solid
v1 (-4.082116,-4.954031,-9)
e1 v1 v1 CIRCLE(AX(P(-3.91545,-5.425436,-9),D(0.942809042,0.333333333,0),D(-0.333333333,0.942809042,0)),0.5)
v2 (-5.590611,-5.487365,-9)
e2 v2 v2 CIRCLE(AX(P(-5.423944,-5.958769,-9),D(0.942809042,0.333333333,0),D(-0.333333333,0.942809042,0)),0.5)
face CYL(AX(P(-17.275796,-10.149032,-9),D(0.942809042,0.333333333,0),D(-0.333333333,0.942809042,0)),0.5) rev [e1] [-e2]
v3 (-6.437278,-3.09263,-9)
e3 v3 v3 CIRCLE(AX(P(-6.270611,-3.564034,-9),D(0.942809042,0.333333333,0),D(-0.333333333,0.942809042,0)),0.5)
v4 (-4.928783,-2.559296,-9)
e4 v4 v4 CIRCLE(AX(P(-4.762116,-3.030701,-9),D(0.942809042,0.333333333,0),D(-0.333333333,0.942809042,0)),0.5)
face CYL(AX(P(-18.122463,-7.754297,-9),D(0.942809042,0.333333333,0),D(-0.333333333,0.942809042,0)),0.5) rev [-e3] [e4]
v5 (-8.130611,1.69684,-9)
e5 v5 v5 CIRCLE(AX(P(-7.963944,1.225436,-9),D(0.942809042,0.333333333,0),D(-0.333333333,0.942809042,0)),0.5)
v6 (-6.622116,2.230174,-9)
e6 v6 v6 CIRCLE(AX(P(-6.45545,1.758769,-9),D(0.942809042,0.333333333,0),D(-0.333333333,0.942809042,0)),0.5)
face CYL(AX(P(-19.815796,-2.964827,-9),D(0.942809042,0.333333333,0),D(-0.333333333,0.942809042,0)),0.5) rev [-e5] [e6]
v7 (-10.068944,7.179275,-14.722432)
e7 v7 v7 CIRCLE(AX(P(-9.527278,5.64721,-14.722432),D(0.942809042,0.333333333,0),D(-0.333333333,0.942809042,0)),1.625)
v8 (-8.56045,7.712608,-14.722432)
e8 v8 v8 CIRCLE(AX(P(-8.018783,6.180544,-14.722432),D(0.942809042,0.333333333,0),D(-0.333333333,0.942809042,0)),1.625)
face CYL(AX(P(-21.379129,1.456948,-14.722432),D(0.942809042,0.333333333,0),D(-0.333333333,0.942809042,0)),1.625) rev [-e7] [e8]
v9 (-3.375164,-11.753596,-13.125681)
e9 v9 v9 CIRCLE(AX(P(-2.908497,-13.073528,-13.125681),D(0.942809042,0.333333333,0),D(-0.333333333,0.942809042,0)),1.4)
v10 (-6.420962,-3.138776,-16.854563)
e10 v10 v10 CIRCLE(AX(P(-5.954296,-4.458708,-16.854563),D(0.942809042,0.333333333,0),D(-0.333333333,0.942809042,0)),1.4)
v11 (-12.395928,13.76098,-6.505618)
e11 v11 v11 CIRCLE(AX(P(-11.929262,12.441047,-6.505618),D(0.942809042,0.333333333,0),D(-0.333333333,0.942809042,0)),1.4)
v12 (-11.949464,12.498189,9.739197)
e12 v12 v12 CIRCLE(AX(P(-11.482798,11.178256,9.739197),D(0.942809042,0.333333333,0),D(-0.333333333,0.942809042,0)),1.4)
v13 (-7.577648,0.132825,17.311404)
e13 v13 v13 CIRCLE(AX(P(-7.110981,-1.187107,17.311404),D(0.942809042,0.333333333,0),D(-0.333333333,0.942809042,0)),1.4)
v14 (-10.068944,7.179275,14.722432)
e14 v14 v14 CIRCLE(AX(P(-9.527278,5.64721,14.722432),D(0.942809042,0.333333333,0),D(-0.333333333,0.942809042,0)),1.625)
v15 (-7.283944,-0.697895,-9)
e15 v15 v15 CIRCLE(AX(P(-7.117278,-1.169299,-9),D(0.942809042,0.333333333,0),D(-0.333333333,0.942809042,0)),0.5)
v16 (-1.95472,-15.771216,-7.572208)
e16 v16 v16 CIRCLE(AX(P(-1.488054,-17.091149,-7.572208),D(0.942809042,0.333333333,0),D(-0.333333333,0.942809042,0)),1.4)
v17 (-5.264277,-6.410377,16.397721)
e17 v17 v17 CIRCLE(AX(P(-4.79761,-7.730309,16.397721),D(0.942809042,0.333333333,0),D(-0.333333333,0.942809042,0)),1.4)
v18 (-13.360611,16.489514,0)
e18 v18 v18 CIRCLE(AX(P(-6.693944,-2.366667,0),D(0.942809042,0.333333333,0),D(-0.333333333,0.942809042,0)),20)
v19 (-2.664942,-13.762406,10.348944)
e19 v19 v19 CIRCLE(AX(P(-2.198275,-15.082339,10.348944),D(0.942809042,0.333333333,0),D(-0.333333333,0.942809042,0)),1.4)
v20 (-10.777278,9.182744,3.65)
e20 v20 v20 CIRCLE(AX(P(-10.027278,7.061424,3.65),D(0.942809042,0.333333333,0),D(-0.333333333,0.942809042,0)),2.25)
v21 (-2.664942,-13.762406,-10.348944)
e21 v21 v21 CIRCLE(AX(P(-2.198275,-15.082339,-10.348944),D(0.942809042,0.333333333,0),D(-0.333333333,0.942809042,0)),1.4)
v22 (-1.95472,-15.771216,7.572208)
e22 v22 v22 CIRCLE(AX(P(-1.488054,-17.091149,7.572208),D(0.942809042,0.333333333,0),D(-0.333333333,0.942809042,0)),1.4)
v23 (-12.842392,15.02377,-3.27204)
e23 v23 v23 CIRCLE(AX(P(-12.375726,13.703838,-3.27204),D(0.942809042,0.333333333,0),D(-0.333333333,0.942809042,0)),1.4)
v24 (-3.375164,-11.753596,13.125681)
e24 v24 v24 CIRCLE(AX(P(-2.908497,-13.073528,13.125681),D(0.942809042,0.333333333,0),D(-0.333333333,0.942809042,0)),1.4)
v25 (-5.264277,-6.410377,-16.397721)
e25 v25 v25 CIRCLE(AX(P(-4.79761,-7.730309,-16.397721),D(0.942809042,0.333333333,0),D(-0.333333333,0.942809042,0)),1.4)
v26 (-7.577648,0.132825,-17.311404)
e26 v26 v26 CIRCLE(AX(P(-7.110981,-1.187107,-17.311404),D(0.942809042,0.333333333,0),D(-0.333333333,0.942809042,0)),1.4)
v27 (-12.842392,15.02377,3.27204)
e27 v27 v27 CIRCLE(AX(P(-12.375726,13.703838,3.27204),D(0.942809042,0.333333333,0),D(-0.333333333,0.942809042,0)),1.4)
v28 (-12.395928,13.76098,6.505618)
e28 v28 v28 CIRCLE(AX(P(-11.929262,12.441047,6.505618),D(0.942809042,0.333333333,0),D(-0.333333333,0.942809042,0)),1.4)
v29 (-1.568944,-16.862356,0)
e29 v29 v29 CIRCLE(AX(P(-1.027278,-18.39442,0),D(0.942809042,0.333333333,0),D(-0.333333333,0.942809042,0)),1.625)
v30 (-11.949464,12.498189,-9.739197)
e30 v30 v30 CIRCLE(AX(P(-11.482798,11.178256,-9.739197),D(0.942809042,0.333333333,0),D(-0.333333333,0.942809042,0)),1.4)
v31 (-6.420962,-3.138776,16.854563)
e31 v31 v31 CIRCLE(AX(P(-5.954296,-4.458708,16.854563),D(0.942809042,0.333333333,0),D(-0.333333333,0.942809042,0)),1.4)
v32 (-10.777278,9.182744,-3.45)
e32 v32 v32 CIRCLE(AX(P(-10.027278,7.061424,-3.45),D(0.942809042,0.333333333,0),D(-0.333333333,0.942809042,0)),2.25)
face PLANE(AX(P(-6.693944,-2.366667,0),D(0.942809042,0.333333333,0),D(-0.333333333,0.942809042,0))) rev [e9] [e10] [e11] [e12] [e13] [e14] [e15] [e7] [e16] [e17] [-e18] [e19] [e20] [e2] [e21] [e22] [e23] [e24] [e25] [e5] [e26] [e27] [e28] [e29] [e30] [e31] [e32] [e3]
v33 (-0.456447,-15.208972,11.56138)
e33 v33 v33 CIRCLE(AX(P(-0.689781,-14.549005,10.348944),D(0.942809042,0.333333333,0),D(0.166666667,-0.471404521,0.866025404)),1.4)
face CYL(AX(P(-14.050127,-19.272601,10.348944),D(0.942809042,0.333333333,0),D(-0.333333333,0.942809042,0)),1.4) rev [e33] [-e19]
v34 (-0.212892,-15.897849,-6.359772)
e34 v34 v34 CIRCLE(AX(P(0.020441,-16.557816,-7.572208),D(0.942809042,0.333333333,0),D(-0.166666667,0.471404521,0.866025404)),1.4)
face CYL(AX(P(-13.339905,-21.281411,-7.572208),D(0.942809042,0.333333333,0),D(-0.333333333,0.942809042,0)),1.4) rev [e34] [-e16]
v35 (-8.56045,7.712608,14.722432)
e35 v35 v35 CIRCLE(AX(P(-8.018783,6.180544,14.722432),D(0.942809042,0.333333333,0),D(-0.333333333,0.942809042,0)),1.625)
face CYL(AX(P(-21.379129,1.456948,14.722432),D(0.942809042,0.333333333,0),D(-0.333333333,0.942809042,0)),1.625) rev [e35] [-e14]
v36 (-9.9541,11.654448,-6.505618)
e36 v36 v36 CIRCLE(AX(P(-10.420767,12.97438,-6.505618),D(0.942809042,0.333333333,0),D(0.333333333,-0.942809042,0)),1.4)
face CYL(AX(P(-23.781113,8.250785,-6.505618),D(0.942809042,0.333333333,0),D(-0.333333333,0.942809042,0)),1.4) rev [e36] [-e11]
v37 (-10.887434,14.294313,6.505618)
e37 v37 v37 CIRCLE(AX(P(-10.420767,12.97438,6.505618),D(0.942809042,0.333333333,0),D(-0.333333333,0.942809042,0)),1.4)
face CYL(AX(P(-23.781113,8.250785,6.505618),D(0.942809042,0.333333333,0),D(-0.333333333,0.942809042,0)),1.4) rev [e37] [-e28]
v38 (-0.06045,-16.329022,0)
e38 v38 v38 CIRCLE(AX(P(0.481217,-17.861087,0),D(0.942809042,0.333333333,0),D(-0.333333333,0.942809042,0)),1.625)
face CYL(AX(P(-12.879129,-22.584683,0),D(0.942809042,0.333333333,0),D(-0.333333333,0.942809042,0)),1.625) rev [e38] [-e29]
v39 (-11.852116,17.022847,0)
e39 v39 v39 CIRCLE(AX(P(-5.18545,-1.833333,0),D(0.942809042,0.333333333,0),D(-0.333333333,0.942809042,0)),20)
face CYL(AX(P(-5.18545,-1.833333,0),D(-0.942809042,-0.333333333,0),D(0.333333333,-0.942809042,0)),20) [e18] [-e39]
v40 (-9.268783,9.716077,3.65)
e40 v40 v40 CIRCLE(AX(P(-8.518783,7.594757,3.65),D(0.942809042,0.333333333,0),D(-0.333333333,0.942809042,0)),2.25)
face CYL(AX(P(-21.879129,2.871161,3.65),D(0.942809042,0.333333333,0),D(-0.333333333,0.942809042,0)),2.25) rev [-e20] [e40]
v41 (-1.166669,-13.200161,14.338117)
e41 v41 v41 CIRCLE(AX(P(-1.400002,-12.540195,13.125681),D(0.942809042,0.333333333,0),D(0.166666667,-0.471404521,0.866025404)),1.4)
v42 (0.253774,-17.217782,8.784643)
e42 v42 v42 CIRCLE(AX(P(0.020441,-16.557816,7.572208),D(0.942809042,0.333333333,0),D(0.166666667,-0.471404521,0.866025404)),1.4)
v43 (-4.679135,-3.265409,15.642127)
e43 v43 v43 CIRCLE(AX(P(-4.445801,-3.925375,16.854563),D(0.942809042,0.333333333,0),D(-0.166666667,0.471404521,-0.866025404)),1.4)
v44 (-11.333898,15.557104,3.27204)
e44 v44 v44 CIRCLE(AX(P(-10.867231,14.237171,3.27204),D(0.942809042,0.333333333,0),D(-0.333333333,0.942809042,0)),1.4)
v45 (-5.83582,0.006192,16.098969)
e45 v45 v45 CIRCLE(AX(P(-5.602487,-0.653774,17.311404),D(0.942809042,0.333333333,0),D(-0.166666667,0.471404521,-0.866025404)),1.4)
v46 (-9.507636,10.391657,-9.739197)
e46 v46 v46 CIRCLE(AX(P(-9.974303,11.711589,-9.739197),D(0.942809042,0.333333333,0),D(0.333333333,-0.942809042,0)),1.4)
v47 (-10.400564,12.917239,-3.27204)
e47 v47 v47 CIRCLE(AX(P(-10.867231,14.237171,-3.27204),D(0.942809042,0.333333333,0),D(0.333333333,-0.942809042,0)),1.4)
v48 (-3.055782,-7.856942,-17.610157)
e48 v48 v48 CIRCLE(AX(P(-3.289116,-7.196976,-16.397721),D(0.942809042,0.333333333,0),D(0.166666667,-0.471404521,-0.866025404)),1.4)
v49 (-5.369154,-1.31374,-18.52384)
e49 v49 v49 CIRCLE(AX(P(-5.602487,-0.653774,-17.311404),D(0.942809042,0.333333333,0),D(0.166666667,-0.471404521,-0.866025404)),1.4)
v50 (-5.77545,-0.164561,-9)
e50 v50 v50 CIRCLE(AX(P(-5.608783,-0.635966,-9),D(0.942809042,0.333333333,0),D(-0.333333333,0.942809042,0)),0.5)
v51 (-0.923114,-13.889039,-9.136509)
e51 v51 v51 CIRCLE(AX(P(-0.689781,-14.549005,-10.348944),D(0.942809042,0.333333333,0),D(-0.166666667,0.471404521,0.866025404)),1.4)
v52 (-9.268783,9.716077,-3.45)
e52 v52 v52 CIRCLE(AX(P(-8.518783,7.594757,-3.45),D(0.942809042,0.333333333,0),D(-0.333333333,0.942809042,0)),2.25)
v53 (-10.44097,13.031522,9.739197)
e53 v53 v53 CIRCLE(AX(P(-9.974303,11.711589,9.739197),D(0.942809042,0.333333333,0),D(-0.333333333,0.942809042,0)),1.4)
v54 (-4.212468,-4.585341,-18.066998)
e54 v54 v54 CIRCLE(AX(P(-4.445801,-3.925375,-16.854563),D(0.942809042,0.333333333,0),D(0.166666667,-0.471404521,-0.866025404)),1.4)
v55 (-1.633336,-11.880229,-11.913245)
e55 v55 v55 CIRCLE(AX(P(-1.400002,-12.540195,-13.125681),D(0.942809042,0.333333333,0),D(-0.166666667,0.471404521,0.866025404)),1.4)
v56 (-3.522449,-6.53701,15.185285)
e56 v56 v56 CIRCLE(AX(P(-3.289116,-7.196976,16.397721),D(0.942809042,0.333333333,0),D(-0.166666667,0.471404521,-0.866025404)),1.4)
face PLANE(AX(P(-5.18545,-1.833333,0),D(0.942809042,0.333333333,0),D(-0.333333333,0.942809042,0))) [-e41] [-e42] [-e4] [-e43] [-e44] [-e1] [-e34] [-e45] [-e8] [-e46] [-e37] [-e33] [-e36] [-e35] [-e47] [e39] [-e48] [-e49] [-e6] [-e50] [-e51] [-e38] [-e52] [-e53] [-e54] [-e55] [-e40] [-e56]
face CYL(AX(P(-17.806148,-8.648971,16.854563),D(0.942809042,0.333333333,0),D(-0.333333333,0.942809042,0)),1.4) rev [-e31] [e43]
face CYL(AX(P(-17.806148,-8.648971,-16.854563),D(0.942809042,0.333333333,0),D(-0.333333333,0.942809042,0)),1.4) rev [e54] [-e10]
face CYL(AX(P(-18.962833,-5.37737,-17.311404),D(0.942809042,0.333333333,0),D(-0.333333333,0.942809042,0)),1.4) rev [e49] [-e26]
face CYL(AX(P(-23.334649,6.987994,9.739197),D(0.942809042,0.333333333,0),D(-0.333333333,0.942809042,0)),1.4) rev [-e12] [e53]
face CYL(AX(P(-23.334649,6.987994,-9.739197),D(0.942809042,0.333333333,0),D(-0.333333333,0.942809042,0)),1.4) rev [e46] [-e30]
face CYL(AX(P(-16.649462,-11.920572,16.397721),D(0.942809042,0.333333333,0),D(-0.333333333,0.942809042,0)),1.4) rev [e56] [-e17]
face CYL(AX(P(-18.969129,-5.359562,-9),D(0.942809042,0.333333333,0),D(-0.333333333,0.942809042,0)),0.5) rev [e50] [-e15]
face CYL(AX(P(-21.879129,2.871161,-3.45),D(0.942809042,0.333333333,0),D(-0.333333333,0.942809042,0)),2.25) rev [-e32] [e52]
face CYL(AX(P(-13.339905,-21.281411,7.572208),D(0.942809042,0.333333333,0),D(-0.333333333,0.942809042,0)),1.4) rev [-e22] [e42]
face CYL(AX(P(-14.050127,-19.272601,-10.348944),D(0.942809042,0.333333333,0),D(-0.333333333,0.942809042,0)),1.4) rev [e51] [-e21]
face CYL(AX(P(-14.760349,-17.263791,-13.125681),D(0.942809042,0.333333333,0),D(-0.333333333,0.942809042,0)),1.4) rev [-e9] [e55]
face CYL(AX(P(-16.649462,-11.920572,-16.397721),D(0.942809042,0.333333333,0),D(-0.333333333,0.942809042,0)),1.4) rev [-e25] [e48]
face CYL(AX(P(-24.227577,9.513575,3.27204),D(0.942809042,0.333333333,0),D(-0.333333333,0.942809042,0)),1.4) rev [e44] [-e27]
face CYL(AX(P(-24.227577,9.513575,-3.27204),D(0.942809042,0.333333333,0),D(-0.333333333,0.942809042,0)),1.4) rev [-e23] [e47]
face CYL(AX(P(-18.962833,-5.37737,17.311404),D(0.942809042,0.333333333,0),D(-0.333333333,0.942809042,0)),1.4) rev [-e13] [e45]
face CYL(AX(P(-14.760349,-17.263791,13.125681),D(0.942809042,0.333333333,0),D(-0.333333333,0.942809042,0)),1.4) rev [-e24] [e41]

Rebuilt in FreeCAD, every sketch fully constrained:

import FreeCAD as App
import Part
import Sketcher
Q = App.Units.Quantity

doc = App.newDocument("Part")
body = doc.addObject("PartDesign::Body", "Body")

# Sketch on an angled plane
sketch1 = body.newObject("Sketcher::SketchObject", "Sketch")
sketch1.Placement = App.Placement(App.Vector(-6.693944, -2.366667, 0), App.Rotation(App.Vector(0, 0, -1), App.Vector(-0.333333333, 0.942809042, 0), App.Vector(0.942809042, 0.333333333, 0), "ZXY"))
sketch1.addGeometry(Part.Circle(App.Vector(0, 0, 0), App.Vector(0, 0, 1), 20), False)
sketch1.addConstraint([
    Sketcher.Constraint("Coincident", 0, 3, -1, 1),
    Sketcher.Constraint("Diameter", 0, Q("40 mm")),
])
pad1 = body.newObject("PartDesign::Pad", "Pad")
pad1.Profile = sketch1
pad1.Length = 1.6

# Sketch on an angled plane
sketch2 = body.newObject("Sketcher::SketchObject", "Sketch001")
sketch2.Placement = App.Placement(App.Vector(-5.18545, -1.833333, 0), App.Rotation(App.Vector(0, 0, -1), App.Vector(-0.333333333, 0.942809042, 0), App.Vector(0.942809042, 0.333333333, 0), "ZXY"))
sketch2.addGeometry([
    Part.Circle(App.Vector(0, -17, 0), App.Vector(0, 0, 1), 1.6),
    Part.Circle(App.Vector(-14.7, 8.5, 0), App.Vector(0, 0, 1), 1.6),
    Part.Circle(App.Vector(14.7, 8.5, 0), App.Vector(0, 0, 1), 1.6),
], False)
sketch2.addConstraint([
    Sketcher.Constraint("Equal", 0, 1),
    Sketcher.Constraint("Equal", 1, 2),
    Sketcher.Constraint("Symmetric", 1, 3, 2, 3, -2),
    Sketcher.Constraint("PointOnObject", 0, 3, -2),
    Sketcher.Constraint("Diameter", 0, Q("3.25 mm")),
    Sketcher.Constraint("DistanceY", 0, 3, -1, 1, Q("17 mm")),
    Sketcher.Constraint("DistanceY", -1, 1, 1, 3, Q("8.5 mm")),
    Sketcher.Constraint("DistanceX", 1, 3, -1, 1, Q("14.722432 mm")),
])
pocket1 = body.newObject("PartDesign::Pocket", "Pocket")
pocket1.Profile = sketch2
pocket1.Type = "ThroughAll"

# Sketch on an angled plane
sketch3 = body.newObject("Sketcher::SketchObject", "Sketch002")
sketch3.Placement = App.Placement(App.Vector(-5.18545, -1.833333, 0), App.Rotation(App.Vector(0, 0, -1), App.Vector(-0.333333333, 0.942809042, 0), App.Vector(0.942809042, 0.333333333, 0), "ZXY"))
sketch3.addGeometry([
    Part.Circle(App.Vector(-9.7, 14.4, 0), App.Vector(0, 0, 1), 1.4),  # 0
    Part.Circle(App.Vector(-3.3, 17, 0), App.Vector(0, 0, 1), 1.4),  # 1
    Part.Circle(App.Vector(-6.5, 15.7, 0), App.Vector(0, 0, 1), 1.4),  # 2
    Part.Circle(App.Vector(9.7, 14.4, 0), App.Vector(0, 0, 1), 1.4),  # 3
    Part.Circle(App.Vector(6.5, 15.7, 0), App.Vector(0, 0, 1), 1.4),  # 4
    Part.Circle(App.Vector(3.3, 17, 0), App.Vector(0, 0, 1), 1.4),  # 5
], False)
sketch3.addConstraint([
    Sketcher.Constraint("Equal", 0, 1),
    Sketcher.Constraint("Equal", 1, 2),
    Sketcher.Constraint("Equal", 2, 3),
    Sketcher.Constraint("Equal", 3, 4),
    Sketcher.Constraint("Equal", 4, 5),
    Sketcher.Constraint("Symmetric", 0, 3, 3, 3, -2),
    Sketcher.Constraint("Symmetric", 2, 3, 4, 3, -2),
    Sketcher.Constraint("Symmetric", 1, 3, 5, 3, -2),
    Sketcher.Constraint("Diameter", 0, Q("2.8 mm")),
    Sketcher.Constraint("DistanceY", -1, 1, 0, 3, Q("14.36656 mm")),
    Sketcher.Constraint("DistanceX", 1, 3, -1, 1, Q("3.27204 mm")),
    Sketcher.Constraint("DistanceX", 2, 3, -1, 1, Q("6.505618 mm")),
    Sketcher.Constraint("DistanceX", 0, 3, 2, 3, Q("3.233578 mm")),
    Sketcher.Constraint("DistanceY", -1, 1, 1, 3, Q("17.045344 mm")),
    Sketcher.Constraint("DistanceY", -1, 1, 2, 3, Q("15.705952 mm")),
])
pocket2 = body.newObject("PartDesign::Pocket", "Pocket001")
pocket2.Profile = sketch3
pocket2.Type = "ThroughAll"
doc.recompute()

datumline = body.newObject("PartDesign::Line", "DatumLine")
datumline.Placement = App.Placement(App.Vector(0, 0, 0), App.Rotation(App.Vector(0, 0, 1), App.Vector(0.942809042, 0.333333333, 0)))
polarpattern = body.newObject("PartDesign::PolarPattern", "PolarPattern")
polarpattern.Originals = [pocket2]
polarpattern.Axis = (datumline, [""])
polarpattern.Angle = 360
polarpattern.Occurrences = 3
body.Tip = polarpattern

# Sketch on an angled plane
sketch4 = body.newObject("Sketcher::SketchObject", "Sketch003")
sketch4.Placement = App.Placement(App.Vector(-5.18545, -1.833333, 0), App.Rotation(App.Vector(0, 0, -1), App.Vector(-0.333333333, 0.942809042, 0), App.Vector(0.942809042, 0.333333333, 0), "ZXY"))
sketch4.addGeometry([
    Part.Circle(App.Vector(9, 3.8, 0), App.Vector(0, 0, 1), 0.5),
    Part.Circle(App.Vector(9, 1.3, 0), App.Vector(0, 0, 1), 0.5),
    Part.Circle(App.Vector(9, -1.3, 0), App.Vector(0, 0, 1), 0.5),
    Part.Circle(App.Vector(9, -3.8, 0), App.Vector(0, 0, 1), 0.5),
], False)
sketch4.addConstraint([
    Sketcher.Constraint("Equal", 0, 1),
    Sketcher.Constraint("Equal", 1, 2),
    Sketcher.Constraint("Equal", 2, 3),
    Sketcher.Constraint("Symmetric", 1, 3, 2, 3, -1),
    Sketcher.Constraint("Symmetric", 0, 3, 3, 3, -1),
    Sketcher.Constraint("Vertical", 0, 3, 1, 3),
    Sketcher.Constraint("Diameter", 0, Q("1 mm")),
    Sketcher.Constraint("DistanceX", -1, 1, 0, 3, Q("9 mm")),
    Sketcher.Constraint("DistanceY", -1, 1, 0, 3, Q("3.81 mm")),
    Sketcher.Constraint("DistanceY", -1, 1, 1, 3, Q("1.27 mm")),
])
pocket3 = body.newObject("PartDesign::Pocket", "Pocket002")
pocket3.Profile = sketch4
pocket3.Type = "ThroughAll"

# Sketch on an angled plane
sketch5 = body.newObject("Sketcher::SketchObject", "Sketch004")
sketch5.Placement = App.Placement(App.Vector(-5.18545, -1.833333, 0), App.Rotation(App.Vector(0, 0, -1), App.Vector(-0.333333333, 0.942809042, 0), App.Vector(0.942809042, 0.333333333, 0), "ZXY"))
sketch5.addGeometry([
    Part.Circle(App.Vector(-3.6, 10, 0), App.Vector(0, 0, 1), 2.2),
    Part.Circle(App.Vector(3.5, 10, 0), App.Vector(0, 0, 1), 2.2),
], False)
sketch5.addConstraint([
    Sketcher.Constraint("Equal", 0, 1),
    Sketcher.Constraint("Horizontal", 0, 3, 1, 3),
    Sketcher.Constraint("Diameter", 0, Q("4.5 mm")),
    Sketcher.Constraint("DistanceY", -1, 1, 0, 3, Q("10 mm")),
    Sketcher.Constraint("DistanceX", 0, 3, 1, 3, Q("7.1 mm")),
    Sketcher.Constraint("DistanceX", 0, 3, -1, 1, Q("3.65 mm")),
])
pocket4 = body.newObject("PartDesign::Pocket", "Pocket003")
pocket4.Profile = sketch5
pocket4.Type = "ThroughAll"

doc.recompute()
